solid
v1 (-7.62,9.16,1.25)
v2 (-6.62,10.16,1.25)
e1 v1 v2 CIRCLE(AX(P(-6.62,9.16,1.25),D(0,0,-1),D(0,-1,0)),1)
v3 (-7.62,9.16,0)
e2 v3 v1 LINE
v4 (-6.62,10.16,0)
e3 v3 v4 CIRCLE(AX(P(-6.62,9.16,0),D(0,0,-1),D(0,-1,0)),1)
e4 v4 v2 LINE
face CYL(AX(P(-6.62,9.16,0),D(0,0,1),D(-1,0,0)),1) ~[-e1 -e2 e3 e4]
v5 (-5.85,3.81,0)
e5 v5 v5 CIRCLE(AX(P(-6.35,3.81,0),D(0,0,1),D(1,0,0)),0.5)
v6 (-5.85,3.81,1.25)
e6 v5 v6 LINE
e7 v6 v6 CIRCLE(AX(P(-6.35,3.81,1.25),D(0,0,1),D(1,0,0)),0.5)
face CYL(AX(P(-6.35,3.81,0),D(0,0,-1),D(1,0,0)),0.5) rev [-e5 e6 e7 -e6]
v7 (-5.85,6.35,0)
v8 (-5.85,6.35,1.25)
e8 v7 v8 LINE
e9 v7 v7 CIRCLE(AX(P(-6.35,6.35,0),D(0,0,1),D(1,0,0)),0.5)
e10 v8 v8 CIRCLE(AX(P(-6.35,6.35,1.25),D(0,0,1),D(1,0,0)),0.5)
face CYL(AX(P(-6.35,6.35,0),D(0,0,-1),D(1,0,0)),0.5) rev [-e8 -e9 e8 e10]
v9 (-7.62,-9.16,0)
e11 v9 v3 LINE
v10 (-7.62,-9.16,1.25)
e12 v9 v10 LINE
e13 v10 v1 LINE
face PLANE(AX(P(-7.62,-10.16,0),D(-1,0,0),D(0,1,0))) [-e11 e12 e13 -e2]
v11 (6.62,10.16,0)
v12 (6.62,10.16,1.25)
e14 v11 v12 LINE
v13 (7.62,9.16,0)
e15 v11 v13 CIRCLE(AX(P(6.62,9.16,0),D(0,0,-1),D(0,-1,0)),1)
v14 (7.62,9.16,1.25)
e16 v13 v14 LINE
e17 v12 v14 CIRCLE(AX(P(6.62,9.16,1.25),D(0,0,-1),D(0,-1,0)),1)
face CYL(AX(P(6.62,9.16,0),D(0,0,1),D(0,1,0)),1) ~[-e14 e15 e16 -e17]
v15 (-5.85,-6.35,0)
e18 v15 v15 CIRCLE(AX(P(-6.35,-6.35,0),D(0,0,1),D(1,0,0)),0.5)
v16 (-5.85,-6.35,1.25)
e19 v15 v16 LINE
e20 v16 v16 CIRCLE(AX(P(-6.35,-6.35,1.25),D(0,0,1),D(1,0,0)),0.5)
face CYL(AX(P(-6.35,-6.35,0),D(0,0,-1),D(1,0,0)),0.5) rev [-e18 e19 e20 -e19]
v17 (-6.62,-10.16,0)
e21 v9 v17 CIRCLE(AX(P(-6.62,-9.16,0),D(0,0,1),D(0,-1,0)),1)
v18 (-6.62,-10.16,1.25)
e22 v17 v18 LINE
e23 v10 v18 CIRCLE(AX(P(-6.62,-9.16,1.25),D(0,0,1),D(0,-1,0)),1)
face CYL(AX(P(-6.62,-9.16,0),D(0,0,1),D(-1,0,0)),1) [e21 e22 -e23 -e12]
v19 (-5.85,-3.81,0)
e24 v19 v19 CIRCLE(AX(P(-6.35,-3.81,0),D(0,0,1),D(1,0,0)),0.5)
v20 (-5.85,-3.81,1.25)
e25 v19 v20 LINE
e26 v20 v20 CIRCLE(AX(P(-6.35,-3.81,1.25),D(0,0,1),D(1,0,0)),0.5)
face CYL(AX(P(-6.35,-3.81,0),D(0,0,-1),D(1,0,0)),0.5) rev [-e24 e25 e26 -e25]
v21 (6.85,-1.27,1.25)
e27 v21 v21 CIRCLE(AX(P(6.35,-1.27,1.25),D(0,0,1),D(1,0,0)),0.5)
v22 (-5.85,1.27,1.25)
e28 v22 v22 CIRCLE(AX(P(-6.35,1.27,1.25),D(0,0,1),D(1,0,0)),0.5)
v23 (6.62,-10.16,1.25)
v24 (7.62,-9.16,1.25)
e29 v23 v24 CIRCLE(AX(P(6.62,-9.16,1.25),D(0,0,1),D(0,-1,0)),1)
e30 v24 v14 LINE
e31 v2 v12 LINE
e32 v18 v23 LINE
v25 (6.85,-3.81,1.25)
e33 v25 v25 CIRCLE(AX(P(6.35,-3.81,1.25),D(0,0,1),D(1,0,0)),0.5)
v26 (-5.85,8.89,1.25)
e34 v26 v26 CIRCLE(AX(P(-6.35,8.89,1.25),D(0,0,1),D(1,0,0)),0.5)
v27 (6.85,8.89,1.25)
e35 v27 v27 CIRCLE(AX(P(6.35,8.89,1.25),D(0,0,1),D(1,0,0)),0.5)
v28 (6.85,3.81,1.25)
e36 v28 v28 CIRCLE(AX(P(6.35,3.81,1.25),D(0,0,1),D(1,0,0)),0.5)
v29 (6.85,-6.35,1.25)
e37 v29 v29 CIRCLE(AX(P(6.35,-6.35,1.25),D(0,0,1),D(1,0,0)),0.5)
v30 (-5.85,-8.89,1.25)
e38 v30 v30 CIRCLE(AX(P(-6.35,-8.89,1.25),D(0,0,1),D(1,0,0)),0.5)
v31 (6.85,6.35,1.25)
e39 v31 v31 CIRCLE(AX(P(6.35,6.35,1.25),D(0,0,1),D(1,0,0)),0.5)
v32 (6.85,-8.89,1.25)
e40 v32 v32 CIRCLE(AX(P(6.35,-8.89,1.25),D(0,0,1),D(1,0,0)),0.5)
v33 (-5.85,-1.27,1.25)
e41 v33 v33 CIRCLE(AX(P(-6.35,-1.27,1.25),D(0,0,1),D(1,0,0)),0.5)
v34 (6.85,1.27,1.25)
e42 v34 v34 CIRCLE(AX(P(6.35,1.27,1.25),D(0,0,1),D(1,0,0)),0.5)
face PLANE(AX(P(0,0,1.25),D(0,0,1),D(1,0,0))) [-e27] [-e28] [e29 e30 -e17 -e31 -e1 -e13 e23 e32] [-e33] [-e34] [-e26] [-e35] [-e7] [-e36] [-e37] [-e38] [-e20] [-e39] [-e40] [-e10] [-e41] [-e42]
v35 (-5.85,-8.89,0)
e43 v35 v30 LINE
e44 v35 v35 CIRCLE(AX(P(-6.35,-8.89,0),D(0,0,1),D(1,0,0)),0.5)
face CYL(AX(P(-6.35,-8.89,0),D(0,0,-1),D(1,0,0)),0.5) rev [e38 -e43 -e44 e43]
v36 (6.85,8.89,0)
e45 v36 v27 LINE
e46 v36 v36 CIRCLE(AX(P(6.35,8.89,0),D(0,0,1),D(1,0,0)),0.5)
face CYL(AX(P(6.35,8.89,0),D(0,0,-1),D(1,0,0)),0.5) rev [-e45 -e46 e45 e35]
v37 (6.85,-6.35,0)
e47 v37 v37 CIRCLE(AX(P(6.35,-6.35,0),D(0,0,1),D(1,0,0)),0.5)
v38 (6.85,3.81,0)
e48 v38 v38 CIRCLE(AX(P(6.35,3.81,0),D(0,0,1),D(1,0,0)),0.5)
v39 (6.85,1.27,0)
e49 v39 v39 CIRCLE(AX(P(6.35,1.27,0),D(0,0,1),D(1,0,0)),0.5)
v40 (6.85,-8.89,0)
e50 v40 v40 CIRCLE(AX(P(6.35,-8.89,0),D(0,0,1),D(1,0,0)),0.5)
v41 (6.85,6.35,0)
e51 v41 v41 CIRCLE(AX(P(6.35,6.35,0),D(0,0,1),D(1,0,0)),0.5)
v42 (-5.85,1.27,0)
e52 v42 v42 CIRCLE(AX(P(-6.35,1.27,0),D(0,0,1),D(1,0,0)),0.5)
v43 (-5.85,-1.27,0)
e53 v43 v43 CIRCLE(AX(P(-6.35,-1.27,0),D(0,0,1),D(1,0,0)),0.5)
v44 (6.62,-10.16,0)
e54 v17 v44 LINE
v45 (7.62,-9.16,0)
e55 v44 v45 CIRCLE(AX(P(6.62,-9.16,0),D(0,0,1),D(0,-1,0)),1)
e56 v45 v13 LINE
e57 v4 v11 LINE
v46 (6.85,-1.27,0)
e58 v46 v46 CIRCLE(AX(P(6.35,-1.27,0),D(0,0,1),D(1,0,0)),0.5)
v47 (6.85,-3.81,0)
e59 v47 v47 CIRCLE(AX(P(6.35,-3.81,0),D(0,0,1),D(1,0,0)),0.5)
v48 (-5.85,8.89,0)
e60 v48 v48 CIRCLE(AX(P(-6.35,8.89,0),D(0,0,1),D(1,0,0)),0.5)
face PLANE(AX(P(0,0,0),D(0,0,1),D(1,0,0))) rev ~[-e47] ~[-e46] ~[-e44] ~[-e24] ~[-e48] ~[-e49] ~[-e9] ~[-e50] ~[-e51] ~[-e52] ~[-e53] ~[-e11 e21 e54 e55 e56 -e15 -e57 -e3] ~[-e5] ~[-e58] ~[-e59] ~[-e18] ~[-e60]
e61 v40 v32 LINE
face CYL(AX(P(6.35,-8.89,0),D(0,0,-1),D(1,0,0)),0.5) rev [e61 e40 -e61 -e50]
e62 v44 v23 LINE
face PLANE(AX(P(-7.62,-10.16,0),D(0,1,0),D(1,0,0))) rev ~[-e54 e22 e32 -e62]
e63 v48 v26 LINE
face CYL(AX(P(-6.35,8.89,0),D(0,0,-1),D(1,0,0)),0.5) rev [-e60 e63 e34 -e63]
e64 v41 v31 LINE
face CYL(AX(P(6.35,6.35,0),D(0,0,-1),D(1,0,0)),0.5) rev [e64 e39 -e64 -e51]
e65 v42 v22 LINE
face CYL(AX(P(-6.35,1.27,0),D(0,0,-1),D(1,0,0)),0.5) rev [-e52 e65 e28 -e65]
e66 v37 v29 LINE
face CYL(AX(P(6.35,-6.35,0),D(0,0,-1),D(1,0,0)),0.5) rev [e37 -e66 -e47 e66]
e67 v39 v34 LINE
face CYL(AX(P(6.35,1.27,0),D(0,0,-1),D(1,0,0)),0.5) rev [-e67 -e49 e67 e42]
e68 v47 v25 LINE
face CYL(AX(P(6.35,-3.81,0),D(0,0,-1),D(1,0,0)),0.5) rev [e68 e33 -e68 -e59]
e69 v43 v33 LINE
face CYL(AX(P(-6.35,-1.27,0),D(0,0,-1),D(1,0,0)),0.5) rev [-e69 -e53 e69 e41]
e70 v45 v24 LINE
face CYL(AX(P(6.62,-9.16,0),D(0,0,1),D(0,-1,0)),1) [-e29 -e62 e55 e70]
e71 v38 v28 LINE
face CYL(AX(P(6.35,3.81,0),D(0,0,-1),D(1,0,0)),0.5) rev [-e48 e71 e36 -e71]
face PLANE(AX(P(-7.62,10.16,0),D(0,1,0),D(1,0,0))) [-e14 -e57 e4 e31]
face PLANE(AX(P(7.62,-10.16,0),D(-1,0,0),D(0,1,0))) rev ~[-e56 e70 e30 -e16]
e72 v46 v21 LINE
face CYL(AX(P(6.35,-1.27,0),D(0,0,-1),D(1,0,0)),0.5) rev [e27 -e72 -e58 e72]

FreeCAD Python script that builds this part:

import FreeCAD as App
import Part
import Sketcher
Q = App.Units.Quantity


def edges_at(feature, points):
    """Names of the edges that pass closest to the given points."""
    edges = feature.Shape.Edges
    near = lambda p: min(range(len(edges)), key=lambda i: edges[i].distToShape(Part.Vertex(*p))[0])
    return sorted({f"Edge{near(p) + 1}" for p in points})

doc = App.newDocument("Part")
body = doc.addObject("PartDesign::Body", "Body")

# Sketch on XY plane
sketch1 = body.newObject("Sketcher::SketchObject", "Sketch")
sketch1.AttachmentSupport = (doc.getObject("XY_Plane"), [""])
sketch1.MapMode = "FlatFace"
sketch1.addGeometry([
    Part.LineSegment(App.Vector(-7.6, 10.2, 0), App.Vector(-7.6, -10.2, 0)),  # 0
    Part.LineSegment(App.Vector(-7.6, -10.2, 0), App.Vector(7.6, -10.2, 0)),  # 1
    Part.LineSegment(App.Vector(7.6, -10.2, 0), App.Vector(7.6, 10.2, 0)),  # 2
    Part.LineSegment(App.Vector(7.6, 10.2, 0), App.Vector(-7.6, 10.2, 0)),  # 3
    Part.Circle(App.Vector(-6.3, -8.9, 0), App.Vector(0, 0, 1), 0.5),  # 4
    Part.Circle(App.Vector(-6.3, -6.3, 0), App.Vector(0, 0, 1), 0.5),  # 5
    Part.Circle(App.Vector(-6.3, -3.8, 0), App.Vector(0, 0, 1), 0.5),  # 6
    Part.Circle(App.Vector(-6.3, -1.3, 0), App.Vector(0, 0, 1), 0.5),  # 7
    Part.Circle(App.Vector(6.3, -8.9, 0), App.Vector(0, 0, 1), 0.5),  # 8
    Part.Circle(App.Vector(6.3, -6.3, 0), App.Vector(0, 0, 1), 0.5),  # 9
    Part.Circle(App.Vector(6.3, -3.8, 0), App.Vector(0, 0, 1), 0.5),  # 10
    Part.Circle(App.Vector(6.3, -1.3, 0), App.Vector(0, 0, 1), 0.5),  # 11
    Part.Circle(App.Vector(-6.3, 1.3, 0), App.Vector(0, 0, 1), 0.5),  # 12
    Part.Circle(App.Vector(-6.3, 3.8, 0), App.Vector(0, 0, 1), 0.5),  # 13
    Part.Circle(App.Vector(-6.3, 6.3, 0), App.Vector(0, 0, 1), 0.5),  # 14
    Part.Circle(App.Vector(-6.3, 8.9, 0), App.Vector(0, 0, 1), 0.5),  # 15
    Part.Circle(App.Vector(6.3, 1.3, 0), App.Vector(0, 0, 1), 0.5),  # 16
    Part.Circle(App.Vector(6.3, 3.8, 0), App.Vector(0, 0, 1), 0.5),  # 17
    Part.Circle(App.Vector(6.3, 6.3, 0), App.Vector(0, 0, 1), 0.5),  # 18
    Part.Circle(App.Vector(6.3, 8.9, 0), App.Vector(0, 0, 1), 0.5),  # 19
], False)
sketch1.addConstraint([
    Sketcher.Constraint("Coincident", 0, 2, 1, 1),
    Sketcher.Constraint("Coincident", 1, 2, 2, 1),
    Sketcher.Constraint("Coincident", 2, 2, 3, 1),
    Sketcher.Constraint("Coincident", 3, 2, 0, 1),
    Sketcher.Constraint("Vertical", 0),
    Sketcher.Constraint("Horizontal", 1),
    Sketcher.Constraint("Vertical", 2),
    Sketcher.Constraint("Horizontal", 3),
    Sketcher.Constraint("Equal", 4, 5),
    Sketcher.Constraint("Equal", 5, 6),
    Sketcher.Constraint("Equal", 6, 7),
    Sketcher.Constraint("Equal", 7, 8),
    Sketcher.Constraint("Equal", 8, 9),
    Sketcher.Constraint("Equal", 9, 10),
    Sketcher.Constraint("Equal", 10, 11),
    Sketcher.Constraint("Equal", 11, 12),
    Sketcher.Constraint("Equal", 12, 13),
    Sketcher.Constraint("Equal", 13, 14),
    Sketcher.Constraint("Equal", 14, 15),
    Sketcher.Constraint("Equal", 15, 16),
    Sketcher.Constraint("Equal", 16, 17),
    Sketcher.Constraint("Equal", 17, 18),
    Sketcher.Constraint("Equal", 18, 19),
    Sketcher.Constraint("Symmetric", 11, 3, 12, 3, -1, 1),
    Sketcher.Constraint("Symmetric", 10, 3, 13, 3, -1, 1),
    Sketcher.Constraint("Symmetric", 9, 3, 14, 3, -1, 1),
    Sketcher.Constraint("Symmetric", 8, 3, 15, 3, -1, 1),
    Sketcher.Constraint("Symmetric", 7, 3, 16, 3, -1, 1),
    Sketcher.Constraint("Symmetric", 6, 3, 17, 3, -1, 1),
    Sketcher.Constraint("Symmetric", 5, 3, 18, 3, -1, 1),
    Sketcher.Constraint("Symmetric", 4, 3, 19, 3, -1, 1),
    Sketcher.Constraint("Symmetric", 0, 2, 2, 2, -1, 1),
    Sketcher.Constraint("Symmetric", 4, 3, 8, 3, -2),
    Sketcher.Constraint("Symmetric", 5, 3, 9, 3, -2),
    Sketcher.Constraint("Symmetric", 6, 3, 10, 3, -2),
    Sketcher.Constraint("Symmetric", 7, 3, 11, 3, -2),
    Sketcher.Constraint("Vertical", 4, 3, 5, 3),
    Sketcher.Constraint("Vertical", 5, 3, 6, 3),
    Sketcher.Constraint("Vertical", 6, 3, 7, 3),
    Sketcher.Constraint("DistanceX", 1, 1, 1, 2, Q("0.6 in")),
    Sketcher.Constraint("DistanceY", 0, 2, 0, 1, Q("0.8 in")),
    Sketcher.Constraint("DistanceY", 4, 3, 5, 3, Q("0.1 in")),
    Sketcher.Constraint("DistanceY", 5, 3, 6, 3, Q("0.1 in")),
    Sketcher.Constraint("DistanceY", 6, 3, 7, 3, Q("0.1 in")),
    Sketcher.Constraint("DistanceX", 4, 3, 8, 3, Q("0.5 in")),
    Sketcher.Constraint("DistanceY", 7, 3, 12, 3, Q("0.1 in")),
    Sketcher.Constraint("Diameter", 4, 1.0),
])
pad1 = body.newObject("PartDesign::Pad", "Pad")
pad1.Profile = sketch1
pad1.Length = 1.25
doc.recompute()

fillet = body.newObject("PartDesign::Fillet", "Fillet")
fillet.Base = (pad1, edges_at(pad1, [
    (-7.62, 10.16, 0.625),
    (-7.62, -10.16, 0.625),
    (7.62, -10.16, 0.625),
    (7.62, 10.16, 0.625),
]))
fillet.Radius = 1

doc.recompute()
